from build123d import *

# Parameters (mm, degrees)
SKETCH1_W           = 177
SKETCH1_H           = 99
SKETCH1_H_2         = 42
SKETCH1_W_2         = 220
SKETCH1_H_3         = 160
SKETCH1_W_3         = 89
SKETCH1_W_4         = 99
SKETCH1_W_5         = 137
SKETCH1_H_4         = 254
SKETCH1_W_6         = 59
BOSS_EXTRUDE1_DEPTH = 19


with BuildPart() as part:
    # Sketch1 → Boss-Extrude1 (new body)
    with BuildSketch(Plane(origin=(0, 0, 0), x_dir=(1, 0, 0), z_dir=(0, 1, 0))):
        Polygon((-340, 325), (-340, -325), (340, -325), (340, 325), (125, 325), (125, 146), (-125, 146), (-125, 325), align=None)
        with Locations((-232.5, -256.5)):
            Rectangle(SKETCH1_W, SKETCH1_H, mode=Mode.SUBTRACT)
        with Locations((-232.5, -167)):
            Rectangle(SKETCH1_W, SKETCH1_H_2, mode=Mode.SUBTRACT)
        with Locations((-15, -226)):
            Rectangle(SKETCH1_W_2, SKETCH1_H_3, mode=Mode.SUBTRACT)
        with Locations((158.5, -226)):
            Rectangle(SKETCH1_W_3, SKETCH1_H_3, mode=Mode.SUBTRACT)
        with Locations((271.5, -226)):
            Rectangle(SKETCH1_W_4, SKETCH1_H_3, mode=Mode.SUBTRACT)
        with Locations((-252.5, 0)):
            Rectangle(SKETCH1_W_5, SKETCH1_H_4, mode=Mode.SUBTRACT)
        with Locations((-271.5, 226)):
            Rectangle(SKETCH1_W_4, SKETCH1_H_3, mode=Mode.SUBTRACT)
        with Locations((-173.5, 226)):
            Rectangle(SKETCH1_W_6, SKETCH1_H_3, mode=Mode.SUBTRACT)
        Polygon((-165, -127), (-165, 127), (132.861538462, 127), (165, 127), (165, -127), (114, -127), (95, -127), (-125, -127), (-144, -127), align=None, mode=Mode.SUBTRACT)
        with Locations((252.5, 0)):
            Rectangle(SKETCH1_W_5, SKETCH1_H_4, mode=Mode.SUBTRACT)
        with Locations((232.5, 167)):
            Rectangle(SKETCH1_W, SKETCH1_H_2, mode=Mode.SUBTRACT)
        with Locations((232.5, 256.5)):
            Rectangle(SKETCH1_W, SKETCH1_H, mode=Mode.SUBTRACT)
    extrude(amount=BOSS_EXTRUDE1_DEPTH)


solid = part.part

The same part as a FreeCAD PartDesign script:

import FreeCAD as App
import Part
import Sketcher
Q = App.Units.Quantity

doc = App.newDocument("Part")
body = doc.addObject("PartDesign::Body", "Body")

# Sketch on XZ plane
sketch1 = doc.addObject("Sketcher::SketchObject", "Sketch")
body.addObject(sketch1)
sketch1.AttachmentSupport = (doc.XZ_Plane, [""])
sketch1.MapMode = "FlatFace"
sketch1.addGeometry(Part.LineSegment(App.Vector(-340, -325, 0), App.Vector(-340, 325, 0)), False)
sketch1.addGeometry(Part.LineSegment(App.Vector(-340, 325, 0), App.Vector(340, 325, 0)), False)
sketch1.addGeometry(Part.LineSegment(App.Vector(340, 325, 0), App.Vector(340, -325, 0)), False)
sketch1.addGeometry(Part.LineSegment(App.Vector(340, -325, 0), App.Vector(125, -325, 0)), False)
sketch1.addGeometry(Part.LineSegment(App.Vector(125, -325, 0), App.Vector(125, -146, 0)), False)
sketch1.addGeometry(Part.LineSegment(App.Vector(125, -146, 0), App.Vector(-125, -146, 0)), False)
sketch1.addGeometry(Part.LineSegment(App.Vector(-125, -146, 0), App.Vector(-125, -325, 0)), False)
sketch1.addGeometry(Part.LineSegment(App.Vector(-125, -325, 0), App.Vector(-340, -325, 0)), False)
sketch1.addGeometry(Part.LineSegment(App.Vector(-144, 306, 0), App.Vector(-321, 306, 0)), False)
sketch1.addGeometry(Part.LineSegment(App.Vector(-321, 306, 0), App.Vector(-321, 207, 0)), False)
sketch1.addGeometry(Part.LineSegment(App.Vector(-321, 207, 0), App.Vector(-144, 207, 0)), False)
sketch1.addGeometry(Part.LineSegment(App.Vector(-144, 207, 0), App.Vector(-144, 306, 0)), False)
sketch1.addGeometry(Part.LineSegment(App.Vector(-144, 188, 0), App.Vector(-321, 188, 0)), False)
sketch1.addGeometry(Part.LineSegment(App.Vector(-321, 188, 0), App.Vector(-321, 146, 0)), False)
sketch1.addGeometry(Part.LineSegment(App.Vector(-321, 146, 0), App.Vector(-144, 146, 0)), False)
sketch1.addGeometry(Part.LineSegment(App.Vector(-144, 146, 0), App.Vector(-144, 188, 0)), False)
sketch1.addGeometry(Part.LineSegment(App.Vector(95, 306, 0), App.Vector(-125, 306, 0)), False)
sketch1.addGeometry(Part.LineSegment(App.Vector(-125, 306, 0), App.Vector(-125, 146, 0)), False)
sketch1.addGeometry(Part.LineSegment(App.Vector(-125, 146, 0), App.Vector(95, 146, 0)), False)
sketch1.addGeometry(Part.LineSegment(App.Vector(95, 146, 0), App.Vector(95, 306, 0)), False)
sketch1.addGeometry(Part.LineSegment(App.Vector(203, 306, 0), App.Vector(114, 306, 0)), False)
sketch1.addGeometry(Part.LineSegment(App.Vector(114, 306, 0), App.Vector(114, 146, 0)), False)
sketch1.addGeometry(Part.LineSegment(App.Vector(114, 146, 0), App.Vector(203, 146, 0)), False)
sketch1.addGeometry(Part.LineSegment(App.Vector(203, 146, 0), App.Vector(203, 306, 0)), False)
sketch1.addGeometry(Part.LineSegment(App.Vector(321, 306, 0), App.Vector(222, 306, 0)), False)
sketch1.addGeometry(Part.LineSegment(App.Vector(222, 306, 0), App.Vector(222, 146, 0)), False)
sketch1.addGeometry(Part.LineSegment(App.Vector(222, 146, 0), App.Vector(321, 146, 0)), False)
sketch1.addGeometry(Part.LineSegment(App.Vector(321, 146, 0), App.Vector(321, 306, 0)), False)
sketch1.addGeometry(Part.LineSegment(App.Vector(-184, 127, 0), App.Vector(-321, 127, 0)), False)
sketch1.addGeometry(Part.LineSegment(App.Vector(-321, 127, 0), App.Vector(-321, -127, 0)), False)
sketch1.addGeometry(Part.LineSegment(App.Vector(-321, -127, 0), App.Vector(-184, -127, 0)), False)
sketch1.addGeometry(Part.LineSegment(App.Vector(-184, -127, 0), App.Vector(-184, 127, 0)), False)
sketch1.addGeometry(Part.LineSegment(App.Vector(-222, -146, 0), App.Vector(-321, -146, 0)), False)
sketch1.addGeometry(Part.LineSegment(App.Vector(-321, -146, 0), App.Vector(-321, -306, 0)), False)
sketch1.addGeometry(Part.LineSegment(App.Vector(-321, -306, 0), App.Vector(-222, -306, 0)), False)
sketch1.addGeometry(Part.LineSegment(App.Vector(-222, -306, 0), App.Vector(-222, -146, 0)), False)
sketch1.addGeometry(Part.LineSegment(App.Vector(-144, -146, 0), App.Vector(-203, -146, 0)), False)
sketch1.addGeometry(Part.LineSegment(App.Vector(-203, -146, 0), App.Vector(-203, -306, 0)), False)
sketch1.addGeometry(Part.LineSegment(App.Vector(-203, -306, 0), App.Vector(-144, -306, 0)), False)
sketch1.addGeometry(Part.LineSegment(App.Vector(-144, -306, 0), App.Vector(-144, -146, 0)), False)
sketch1.addGeometry(Part.LineSegment(App.Vector(165, 127, 0), App.Vector(-165, 127, 0)), False)
sketch1.addGeometry(Part.LineSegment(App.Vector(-165, 127, 0), App.Vector(-165, -127, 0)), False)
sketch1.addGeometry(Part.LineSegment(App.Vector(-165, -127, 0), App.Vector(165, -127, 0)), False)
sketch1.addGeometry(Part.LineSegment(App.Vector(165, -127, 0), App.Vector(165, 127, 0)), False)
sketch1.addGeometry(Part.LineSegment(App.Vector(321, 127, 0), App.Vector(184, 127, 0)), False)
sketch1.addGeometry(Part.LineSegment(App.Vector(184, 127, 0), App.Vector(184, -127, 0)), False)
sketch1.addGeometry(Part.LineSegment(App.Vector(184, -127, 0), App.Vector(321, -127, 0)), False)
sketch1.addGeometry(Part.LineSegment(App.Vector(321, -127, 0), App.Vector(321, 127, 0)), False)
sketch1.addGeometry(Part.LineSegment(App.Vector(321, -146, 0), App.Vector(144, -146, 0)), False)
sketch1.addGeometry(Part.LineSegment(App.Vector(144, -146, 0), App.Vector(144, -188, 0)), False)
sketch1.addGeometry(Part.LineSegment(App.Vector(144, -188, 0), App.Vector(321, -188, 0)), False)
sketch1.addGeometry(Part.LineSegment(App.Vector(321, -188, 0), App.Vector(321, -146, 0)), False)
sketch1.addGeometry(Part.LineSegment(App.Vector(321, -207, 0), App.Vector(144, -207, 0)), False)
sketch1.addGeometry(Part.LineSegment(App.Vector(144, -207, 0), App.Vector(144, -306, 0)), False)
sketch1.addGeometry(Part.LineSegment(App.Vector(144, -306, 0), App.Vector(321, -306, 0)), False)
sketch1.addGeometry(Part.LineSegment(App.Vector(321, -306, 0), App.Vector(321, -207, 0)), False)
sketch1.addConstraint(Sketcher.Constraint("Coincident", 0, 2, 1, 1))
sketch1.addConstraint(Sketcher.Constraint("Coincident", 1, 2, 2, 1))
sketch1.addConstraint(Sketcher.Constraint("Coincident", 2, 2, 3, 1))
sketch1.addConstraint(Sketcher.Constraint("Coincident", 3, 2, 4, 1))
sketch1.addConstraint(Sketcher.Constraint("Coincident", 4, 2, 5, 1))
sketch1.addConstraint(Sketcher.Constraint("Coincident", 5, 2, 6, 1))
sketch1.addConstraint(Sketcher.Constraint("Coincident", 6, 2, 7, 1))
sketch1.addConstraint(Sketcher.Constraint("Coincident", 7, 2, 0, 1))
sketch1.addConstraint(Sketcher.Constraint("Coincident", 8, 2, 9, 1))
sketch1.addConstraint(Sketcher.Constraint("Coincident", 9, 2, 10, 1))
sketch1.addConstraint(Sketcher.Constraint("Coincident", 10, 2, 11, 1))
sketch1.addConstraint(Sketcher.Constraint("Coincident", 11, 2, 8, 1))
sketch1.addConstraint(Sketcher.Constraint("Coincident", 12, 2, 13, 1))
sketch1.addConstraint(Sketcher.Constraint("Coincident", 13, 2, 14, 1))
sketch1.addConstraint(Sketcher.Constraint("Coincident", 14, 2, 15, 1))
sketch1.addConstraint(Sketcher.Constraint("Coincident", 15, 2, 12, 1))
sketch1.addConstraint(Sketcher.Constraint("Coincident", 16, 2, 17, 1))
sketch1.addConstraint(Sketcher.Constraint("Coincident", 17, 2, 18, 1))
sketch1.addConstraint(Sketcher.Constraint("Coincident", 18, 2, 19, 1))
sketch1.addConstraint(Sketcher.Constraint("Coincident", 19, 2, 16, 1))
sketch1.addConstraint(Sketcher.Constraint("Coincident", 20, 2, 21, 1))
sketch1.addConstraint(Sketcher.Constraint("Coincident", 21, 2, 22, 1))
sketch1.addConstraint(Sketcher.Constraint("Coincident", 22, 2, 23, 1))
sketch1.addConstraint(Sketcher.Constraint("Coincident", 23, 2, 20, 1))
sketch1.addConstraint(Sketcher.Constraint("Coincident", 24, 2, 25, 1))
sketch1.addConstraint(Sketcher.Constraint("Coincident", 25, 2, 26, 1))
sketch1.addConstraint(Sketcher.Constraint("Coincident", 26, 2, 27, 1))
sketch1.addConstraint(Sketcher.Constraint("Coincident", 27, 2, 24, 1))
sketch1.addConstraint(Sketcher.Constraint("Coincident", 28, 2, 29, 1))
sketch1.addConstraint(Sketcher.Constraint("Coincident", 29, 2, 30, 1))
sketch1.addConstraint(Sketcher.Constraint("Coincident", 30, 2, 31, 1))
sketch1.addConstraint(Sketcher.Constraint("Coincident", 31, 2, 28, 1))
sketch1.addConstraint(Sketcher.Constraint("Coincident", 32, 2, 33, 1))
sketch1.addConstraint(Sketcher.Constraint("Coincident", 33, 2, 34, 1))
sketch1.addConstraint(Sketcher.Constraint("Coincident", 34, 2, 35, 1))
sketch1.addConstraint(Sketcher.Constraint("Coincident", 35, 2, 32, 1))
sketch1.addConstraint(Sketcher.Constraint("Coincident", 36, 2, 37, 1))
sketch1.addConstraint(Sketcher.Constraint("Coincident", 37, 2, 38, 1))
sketch1.addConstraint(Sketcher.Constraint("Coincident", 38, 2, 39, 1))
sketch1.addConstraint(Sketcher.Constraint("Coincident", 39, 2, 36, 1))
sketch1.addConstraint(Sketcher.Constraint("Coincident", 40, 2, 41, 1))
sketch1.addConstraint(Sketcher.Constraint("Coincident", 41, 2, 42, 1))
sketch1.addConstraint(Sketcher.Constraint("Coincident", 42, 2, 43, 1))
sketch1.addConstraint(Sketcher.Constraint("Coincident", 43, 2, 40, 1))
sketch1.addConstraint(Sketcher.Constraint("Coincident", 44, 2, 45, 1))
sketch1.addConstraint(Sketcher.Constraint("Coincident", 45, 2, 46, 1))
sketch1.addConstraint(Sketcher.Constraint("Coincident", 46, 2, 47, 1))
sketch1.addConstraint(Sketcher.Constraint("Coincident", 47, 2, 44, 1))
sketch1.addConstraint(Sketcher.Constraint("Coincident", 48, 2, 49, 1))
sketch1.addConstraint(Sketcher.Constraint("Coincident", 49, 2, 50, 1))
sketch1.addConstraint(Sketcher.Constraint("Coincident", 50, 2, 51, 1))
sketch1.addConstraint(Sketcher.Constraint("Coincident", 51, 2, 48, 1))
sketch1.addConstraint(Sketcher.Constraint("Coincident", 52, 2, 53, 1))
sketch1.addConstraint(Sketcher.Constraint("Coincident", 53, 2, 54, 1))
sketch1.addConstraint(Sketcher.Constraint("Coincident", 54, 2, 55, 1))
sketch1.addConstraint(Sketcher.Constraint("Coincident", 55, 2, 52, 1))
sketch1.addConstraint(Sketcher.Constraint("Vertical", 0))
sketch1.addConstraint(Sketcher.Constraint("Horizontal", 1))
sketch1.addConstraint(Sketcher.Constraint("Vertical", 2))
sketch1.addConstraint(Sketcher.Constraint("Horizontal", 3))
sketch1.addConstraint(Sketcher.Constraint("Vertical", 4))
sketch1.addConstraint(Sketcher.Constraint("Horizontal", 5))
sketch1.addConstraint(Sketcher.Constraint("Vertical", 6))
sketch1.addConstraint(Sketcher.Constraint("Horizontal", 7))
sketch1.addConstraint(Sketcher.Constraint("Horizontal", 8))
sketch1.addConstraint(Sketcher.Constraint("Vertical", 9))
sketch1.addConstraint(Sketcher.Constraint("Horizontal", 10))
sketch1.addConstraint(Sketcher.Constraint("Vertical", 11))
sketch1.addConstraint(Sketcher.Constraint("Horizontal", 12))
sketch1.addConstraint(Sketcher.Constraint("Vertical", 13))
sketch1.addConstraint(Sketcher.Constraint("Horizontal", 14))
sketch1.addConstraint(Sketcher.Constraint("Vertical", 15))
sketch1.addConstraint(Sketcher.Constraint("Horizontal", 16))
sketch1.addConstraint(Sketcher.Constraint("Vertical", 17))
sketch1.addConstraint(Sketcher.Constraint("Horizontal", 18))
sketch1.addConstraint(Sketcher.Constraint("Vertical", 19))
sketch1.addConstraint(Sketcher.Constraint("Horizontal", 20))
sketch1.addConstraint(Sketcher.Constraint("Vertical", 21))
sketch1.addConstraint(Sketcher.Constraint("Horizontal", 22))
sketch1.addConstraint(Sketcher.Constraint("Vertical", 23))
sketch1.addConstraint(Sketcher.Constraint("Horizontal", 24))
sketch1.addConstraint(Sketcher.Constraint("Vertical", 25))
sketch1.addConstraint(Sketcher.Constraint("Horizontal", 26))
sketch1.addConstraint(Sketcher.Constraint("Vertical", 27))
sketch1.addConstraint(Sketcher.Constraint("Horizontal", 28))
sketch1.addConstraint(Sketcher.Constraint("Vertical", 29))
sketch1.addConstraint(Sketcher.Constraint("Horizontal", 30))
sketch1.addConstraint(Sketcher.Constraint("Vertical", 31))
sketch1.addConstraint(Sketcher.Constraint("Horizontal", 32))
sketch1.addConstraint(Sketcher.Constraint("Vertical", 33))
sketch1.addConstraint(Sketcher.Constraint("Horizontal", 34))
sketch1.addConstraint(Sketcher.Constraint("Vertical", 35))
sketch1.addConstraint(Sketcher.Constraint("Horizontal", 36))
sketch1.addConstraint(Sketcher.Constraint("Vertical", 37))
sketch1.addConstraint(Sketcher.Constraint("Horizontal", 38))
sketch1.addConstraint(Sketcher.Constraint("Vertical", 39))
sketch1.addConstraint(Sketcher.Constraint("Horizontal", 40))
sketch1.addConstraint(Sketcher.Constraint("Vertical", 41))
sketch1.addConstraint(Sketcher.Constraint("Horizontal", 42))
sketch1.addConstraint(Sketcher.Constraint("Vertical", 43))
sketch1.addConstraint(Sketcher.Constraint("Horizontal", 44))
sketch1.addConstraint(Sketcher.Constraint("Vertical", 45))
sketch1.addConstraint(Sketcher.Constraint("Horizontal", 46))
sketch1.addConstraint(Sketcher.Constraint("Vertical", 47))
sketch1.addConstraint(Sketcher.Constraint("Horizontal", 48))
sketch1.addConstraint(Sketcher.Constraint("Vertical", 49))
sketch1.addConstraint(Sketcher.Constraint("Horizontal", 50))
sketch1.addConstraint(Sketcher.Constraint("Vertical", 51))
sketch1.addConstraint(Sketcher.Constraint("Horizontal", 52))
sketch1.addConstraint(Sketcher.Constraint("Vertical", 53))
sketch1.addConstraint(Sketcher.Constraint("Horizontal", 54))
sketch1.addConstraint(Sketcher.Constraint("Vertical", 55))
sketch1.addConstraint(Sketcher.Constraint("Symmetric", 0, 2, 2, 2, -1, 1))
sketch1.addConstraint(Sketcher.Constraint("Symmetric", 4, 2, 17, 2, -1, 1))
sketch1.addConstraint(Sketcher.Constraint("Symmetric", 26, 2, 32, 2, -1, 1))
sketch1.addConstraint(Sketcher.Constraint("Symmetric", 24, 2, 34, 2, -1, 1))
sketch1.addConstraint(Sketcher.Constraint("Symmetric", 22, 2, 36, 2, -1, 1))
sketch1.addConstraint(Sketcher.Constraint("Symmetric", 40, 2, 42, 2, -1, 1))
sketch1.addConstraint(Sketcher.Constraint("Symmetric", 30, 2, 44, 2, -1, 1))
sketch1.addConstraint(Sketcher.Constraint("Symmetric", 28, 2, 46, 2, -1, 1))
sketch1.addConstraint(Sketcher.Constraint("Symmetric", 14, 2, 48, 2, -1, 1))
sketch1.addConstraint(Sketcher.Constraint("Symmetric", 12, 2, 50, 2, -1, 1))
sketch1.addConstraint(Sketcher.Constraint("Symmetric", 10, 2, 52, 2, -1, 1))
sketch1.addConstraint(Sketcher.Constraint("Symmetric", 8, 2, 54, 2, -1, 1))
sketch1.addConstraint(Sketcher.Constraint("Symmetric", 3, 2, 6, 2, -2))
sketch1.addConstraint(Sketcher.Constraint("Symmetric", 13, 2, 26, 2, -2))
sketch1.addConstraint(Sketcher.Constraint("Symmetric", 8, 2, 27, 2, -2))
sketch1.addConstraint(Sketcher.Constraint("Symmetric", 39, 2, 48, 2, -2))
sketch1.addConstraint(Sketcher.Constraint("Symmetric", 38, 2, 53, 2, -2))
sketch1.addConstraint(Sketcher.Constraint("Horizontal", 11, 2, 16, 2))
sketch1.addConstraint(Sketcher.Constraint("Horizontal", 14, 2, 17, 2))
sketch1.addConstraint(Sketcher.Constraint("Horizontal", 19, 2, 20, 2))
sketch1.addConstraint(Sketcher.Constraint("Horizontal", 31, 2, 40, 2))
sketch1.addConstraint(Sketcher.Constraint("Horizontal", 30, 2, 41, 2))
sketch1.addConstraint(Sketcher.Constraint("Vertical", 13, 2, 28, 2))
sketch1.addConstraint(Sketcher.Constraint("Equal", 34, 9))
sketch1.addConstraint(Sketcher.Constraint("DistanceX", 1, 1, 1, 2, Q("680 mm")))
sketch1.addConstraint(Sketcher.Constraint("DistanceX", 3, 2, 3, 1, Q("215 mm")))
sketch1.addConstraint(Sketcher.Constraint("DistanceX", 8, 2, 8, 1, Q("177 mm")))
sketch1.addConstraint(Sketcher.Constraint("DistanceX", 16, 2, 16, 1, Q("220 mm")))
sketch1.addConstraint(Sketcher.Constraint("DistanceX", 20, 2, 20, 1, Q("89 mm")))
sketch1.addConstraint(Sketcher.Constraint("DistanceX", 24, 2, 24, 1, Q("99 mm")))
sketch1.addConstraint(Sketcher.Constraint("DistanceX", 28, 2, 28, 1, Q("137 mm")))
sketch1.addConstraint(Sketcher.Constraint("DistanceX", 36, 2, 36, 1, Q("59 mm")))
sketch1.addConstraint(Sketcher.Constraint("DistanceX", 40, 2, 40, 1, Q("330 mm")))
sketch1.addConstraint(Sketcher.Constraint("DistanceY", 0, 1, 0, 2, Q("650 mm")))
sketch1.addConstraint(Sketcher.Constraint("DistanceY", 4, 1, 4, 2, Q("179 mm")))
sketch1.addConstraint(Sketcher.Constraint("DistanceY", 13, 2, 13, 1, Q("42 mm")))
sketch1.addConstraint(Sketcher.Constraint("DistanceY", 17, 2, 17, 1, Q("160 mm")))
sketch1.addConstraint(Sketcher.Constraint("DistanceY", 29, 2, 29, 1, Q("254 mm")))
sketch1.addConstraint(Sketcher.Constraint("DistanceX", 8, 2, -1, 1, Q("321 mm")))
pad1 = doc.addObject("PartDesign::Pad", "Pad")
body.addObject(pad1)
pad1.Profile = sketch1
pad1.Length = 19
pad1.Reversed = True

doc.recompute()
